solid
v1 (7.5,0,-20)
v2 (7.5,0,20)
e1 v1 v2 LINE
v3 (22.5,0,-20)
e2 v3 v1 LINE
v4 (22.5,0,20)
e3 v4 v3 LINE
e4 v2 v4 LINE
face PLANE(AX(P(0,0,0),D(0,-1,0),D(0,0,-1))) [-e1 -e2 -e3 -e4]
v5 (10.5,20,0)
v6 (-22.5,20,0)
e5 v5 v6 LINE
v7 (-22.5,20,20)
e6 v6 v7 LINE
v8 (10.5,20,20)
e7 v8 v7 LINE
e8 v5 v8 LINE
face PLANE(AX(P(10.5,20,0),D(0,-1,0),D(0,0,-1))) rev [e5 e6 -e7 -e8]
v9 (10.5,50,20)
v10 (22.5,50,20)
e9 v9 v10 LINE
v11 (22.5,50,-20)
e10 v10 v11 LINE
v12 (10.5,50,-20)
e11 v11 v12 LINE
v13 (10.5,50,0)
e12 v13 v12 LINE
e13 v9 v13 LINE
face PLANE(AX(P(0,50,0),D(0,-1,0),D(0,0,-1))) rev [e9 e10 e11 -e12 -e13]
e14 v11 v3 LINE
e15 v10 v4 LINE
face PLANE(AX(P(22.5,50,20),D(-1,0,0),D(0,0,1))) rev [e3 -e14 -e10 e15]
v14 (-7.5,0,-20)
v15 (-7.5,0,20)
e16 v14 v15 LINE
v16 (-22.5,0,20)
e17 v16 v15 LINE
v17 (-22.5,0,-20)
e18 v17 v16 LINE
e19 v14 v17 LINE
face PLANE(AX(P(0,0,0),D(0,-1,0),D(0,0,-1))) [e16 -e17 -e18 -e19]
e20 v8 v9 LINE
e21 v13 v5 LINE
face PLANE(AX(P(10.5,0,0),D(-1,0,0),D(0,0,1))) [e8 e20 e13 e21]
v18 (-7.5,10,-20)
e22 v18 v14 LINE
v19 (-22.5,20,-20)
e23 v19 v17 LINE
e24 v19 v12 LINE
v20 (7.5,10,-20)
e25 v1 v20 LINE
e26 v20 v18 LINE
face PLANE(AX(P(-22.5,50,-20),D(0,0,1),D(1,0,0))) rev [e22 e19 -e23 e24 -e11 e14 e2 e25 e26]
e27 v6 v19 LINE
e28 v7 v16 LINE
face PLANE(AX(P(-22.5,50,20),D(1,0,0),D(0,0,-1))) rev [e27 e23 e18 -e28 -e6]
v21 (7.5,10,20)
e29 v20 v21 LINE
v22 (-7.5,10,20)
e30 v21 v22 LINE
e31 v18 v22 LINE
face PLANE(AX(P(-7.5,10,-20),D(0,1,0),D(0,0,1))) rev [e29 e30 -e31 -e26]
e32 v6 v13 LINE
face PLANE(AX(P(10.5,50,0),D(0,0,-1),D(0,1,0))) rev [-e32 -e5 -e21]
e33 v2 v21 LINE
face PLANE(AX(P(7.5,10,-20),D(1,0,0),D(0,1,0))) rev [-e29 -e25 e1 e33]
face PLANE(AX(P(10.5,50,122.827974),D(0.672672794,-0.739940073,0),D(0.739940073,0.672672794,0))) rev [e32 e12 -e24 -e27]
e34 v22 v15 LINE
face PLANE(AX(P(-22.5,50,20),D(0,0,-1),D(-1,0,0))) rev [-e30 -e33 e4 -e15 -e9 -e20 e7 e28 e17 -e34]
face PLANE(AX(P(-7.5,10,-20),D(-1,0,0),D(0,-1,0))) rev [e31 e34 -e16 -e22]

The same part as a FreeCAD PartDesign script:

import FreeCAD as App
import Part
import Sketcher
from FreeCAD import Vector
Q = App.Units.Quantity


def add_polygon(sketch, points):
    """Adds a closed chain of lines whose ends are joined by coincident constraints."""
    first, n = sketch.GeometryCount, len(points)
    for a, b in zip(points, points[1:] + points[:1]):
        sketch.addGeometry(Part.LineSegment(App.Vector(*a, 0), App.Vector(*b, 0)), False)
    for i in range(n):
        sketch.addConstraint(Sketcher.Constraint("Coincident", first + i, 2, first + (i + 1) % n, 1))

doc = App.newDocument("Part")
body = doc.addObject("PartDesign::Body", "Body")

# Sketch on XZ plane
sketch1 = body.newObject("Sketcher::SketchObject", "Sketch")
sketch1.AttachmentSupport = (doc.getObject("XZ_Plane"), [""])
sketch1.MapMode = "FlatFace"
add_polygon(sketch1, [(-22, -20), (-22, 20), (22, 20), (22, -20)])  # lines 0-3
sketch1.addConstraint(Sketcher.Constraint("Vertical", 0))
sketch1.addConstraint(Sketcher.Constraint("Horizontal", 1))
sketch1.addConstraint(Sketcher.Constraint("Vertical", 2))
sketch1.addConstraint(Sketcher.Constraint("Horizontal", 3))
sketch1.addConstraint(Sketcher.Constraint("Symmetric", 0, 2, 2, 2, -1, 1))
sketch1.addConstraint(Sketcher.Constraint("DistanceX", 1, 1, 1, 2, Q("45 mm")))
sketch1.addConstraint(Sketcher.Constraint("DistanceY", 0, 1, 0, 2, Q("40 mm")))
pad1 = body.newObject("PartDesign::Pad", "Pad")
pad1.Profile = sketch1
pad1.Length = 50
pad1.Reversed = True

# Sketch on XY plane
sketch2 = body.newObject("Sketcher::SketchObject", "Sketch001")
sketch2.AttachmentSupport = (doc.getObject("XY_Plane"), [""])
sketch2.MapMode = "FlatFace"
sketch2.AttachmentOffset = App.Placement(Vector(0, 0, 20), App.Rotation())
add_polygon(sketch2, [(-8, 10), (-8, 0), (8, 0), (8, 10)])  # lines 0-3
sketch2.addConstraint(Sketcher.Constraint("Vertical", 0))
sketch2.addConstraint(Sketcher.Constraint("Horizontal", 1))
sketch2.addConstraint(Sketcher.Constraint("Vertical", 2))
sketch2.addConstraint(Sketcher.Constraint("Horizontal", 3))
sketch2.addConstraint(Sketcher.Constraint("Symmetric", 0, 2, 1, 2, -1, 1))
sketch2.addConstraint(Sketcher.Constraint("DistanceX", 1, 1, 1, 2, Q("15 mm")))
sketch2.addConstraint(Sketcher.Constraint("DistanceY", 0, 2, 0, 1, Q("10 mm")))
pocket1 = body.newObject("PartDesign::Pocket", "Pocket")
pocket1.Profile = sketch2
pocket1.Type = "ThroughAll"

# Sketch on YZ plane
sketch3 = body.newObject("Sketcher::SketchObject", "Sketch002")
sketch3.AttachmentSupport = (doc.getObject("YZ_Plane"), [""])
sketch3.MapMode = "FlatFace"
sketch3.AttachmentOffset = App.Placement(Vector(0, 0, -22.5), App.Rotation())
add_polygon(sketch3, [(50, 0), (20, 0), (20, 20), (50, 20)])  # lines 0-3
sketch3.addConstraint(Sketcher.Constraint("Horizontal", 0))
sketch3.addConstraint(Sketcher.Constraint("Vertical", 1))
sketch3.addConstraint(Sketcher.Constraint("Horizontal", 2))
sketch3.addConstraint(Sketcher.Constraint("Vertical", 3))
sketch3.addConstraint(Sketcher.Constraint("PointOnObject", 0, 2, -1))
sketch3.addConstraint(Sketcher.Constraint("DistanceX", 0, 2, 0, 1, Q("30 mm")))
sketch3.addConstraint(Sketcher.Constraint("DistanceY", 1, 1, 1, 2, Q("20 mm")))
sketch3.addConstraint(Sketcher.Constraint("DistanceX", -1, 1, 0, 2, Q("20 mm")))
pocket2 = body.newObject("PartDesign::Pocket", "Pocket001")
pocket2.Profile = sketch3
pocket2.Length = 33
pocket2.Reversed = True

# Sketch on XY plane
sketch4 = body.newObject("Sketcher::SketchObject", "Sketch003")
sketch4.AttachmentSupport = (doc.getObject("XY_Plane"), [""])
sketch4.MapMode = "FlatFace"
add_polygon(sketch4, [(10, 50), (107, 137), (-68, 329), (-293, 125), (-119, -67), (-22, 20)])  # lines 0-5
sketch4.addConstraint(Sketcher.Constraint("Perpendicular", 0, 1))
sketch4.addConstraint(Sketcher.Constraint("Perpendicular", 1, 2))
sketch4.addConstraint(Sketcher.Constraint("Perpendicular", 2, 3))
sketch4.addConstraint(Sketcher.Constraint("Perpendicular", 3, 4))
sketch4.addConstraint(Sketcher.Constraint("Parallel", 4, 5))
sketch4.addConstraint(Sketcher.Constraint("Equal", 0, 4))
sketch4.addConstraint(Sketcher.Constraint("DistanceY", -1, 1, 4, 2, Q("20 mm")))
sketch4.addConstraint(Sketcher.Constraint("DistanceY", -1, 1, 5, 2, Q("50 mm")))
sketch4.addConstraint(Sketcher.Constraint("DistanceX", 4, 2, 5, 2, Q("33 mm")))
sketch4.addConstraint(Sketcher.Constraint("DistanceX", 4, 2, -1, 1, Q("22.5 mm")))
sketch4.addConstraint(Sketcher.Constraint("DistanceY", 0, 2, 1, 2, Q("192.1129 mm")))
sketch4.addConstraint(Sketcher.Constraint("DistanceX", 2, 2, 1, 2, Q("225.1129 mm")))
pocket3 = body.newObject("PartDesign::Pocket", "Pocket002")
pocket3.Profile = sketch4
pocket3.Type = "ThroughAll"
pocket3.Midplane = True

doc.recompute()
